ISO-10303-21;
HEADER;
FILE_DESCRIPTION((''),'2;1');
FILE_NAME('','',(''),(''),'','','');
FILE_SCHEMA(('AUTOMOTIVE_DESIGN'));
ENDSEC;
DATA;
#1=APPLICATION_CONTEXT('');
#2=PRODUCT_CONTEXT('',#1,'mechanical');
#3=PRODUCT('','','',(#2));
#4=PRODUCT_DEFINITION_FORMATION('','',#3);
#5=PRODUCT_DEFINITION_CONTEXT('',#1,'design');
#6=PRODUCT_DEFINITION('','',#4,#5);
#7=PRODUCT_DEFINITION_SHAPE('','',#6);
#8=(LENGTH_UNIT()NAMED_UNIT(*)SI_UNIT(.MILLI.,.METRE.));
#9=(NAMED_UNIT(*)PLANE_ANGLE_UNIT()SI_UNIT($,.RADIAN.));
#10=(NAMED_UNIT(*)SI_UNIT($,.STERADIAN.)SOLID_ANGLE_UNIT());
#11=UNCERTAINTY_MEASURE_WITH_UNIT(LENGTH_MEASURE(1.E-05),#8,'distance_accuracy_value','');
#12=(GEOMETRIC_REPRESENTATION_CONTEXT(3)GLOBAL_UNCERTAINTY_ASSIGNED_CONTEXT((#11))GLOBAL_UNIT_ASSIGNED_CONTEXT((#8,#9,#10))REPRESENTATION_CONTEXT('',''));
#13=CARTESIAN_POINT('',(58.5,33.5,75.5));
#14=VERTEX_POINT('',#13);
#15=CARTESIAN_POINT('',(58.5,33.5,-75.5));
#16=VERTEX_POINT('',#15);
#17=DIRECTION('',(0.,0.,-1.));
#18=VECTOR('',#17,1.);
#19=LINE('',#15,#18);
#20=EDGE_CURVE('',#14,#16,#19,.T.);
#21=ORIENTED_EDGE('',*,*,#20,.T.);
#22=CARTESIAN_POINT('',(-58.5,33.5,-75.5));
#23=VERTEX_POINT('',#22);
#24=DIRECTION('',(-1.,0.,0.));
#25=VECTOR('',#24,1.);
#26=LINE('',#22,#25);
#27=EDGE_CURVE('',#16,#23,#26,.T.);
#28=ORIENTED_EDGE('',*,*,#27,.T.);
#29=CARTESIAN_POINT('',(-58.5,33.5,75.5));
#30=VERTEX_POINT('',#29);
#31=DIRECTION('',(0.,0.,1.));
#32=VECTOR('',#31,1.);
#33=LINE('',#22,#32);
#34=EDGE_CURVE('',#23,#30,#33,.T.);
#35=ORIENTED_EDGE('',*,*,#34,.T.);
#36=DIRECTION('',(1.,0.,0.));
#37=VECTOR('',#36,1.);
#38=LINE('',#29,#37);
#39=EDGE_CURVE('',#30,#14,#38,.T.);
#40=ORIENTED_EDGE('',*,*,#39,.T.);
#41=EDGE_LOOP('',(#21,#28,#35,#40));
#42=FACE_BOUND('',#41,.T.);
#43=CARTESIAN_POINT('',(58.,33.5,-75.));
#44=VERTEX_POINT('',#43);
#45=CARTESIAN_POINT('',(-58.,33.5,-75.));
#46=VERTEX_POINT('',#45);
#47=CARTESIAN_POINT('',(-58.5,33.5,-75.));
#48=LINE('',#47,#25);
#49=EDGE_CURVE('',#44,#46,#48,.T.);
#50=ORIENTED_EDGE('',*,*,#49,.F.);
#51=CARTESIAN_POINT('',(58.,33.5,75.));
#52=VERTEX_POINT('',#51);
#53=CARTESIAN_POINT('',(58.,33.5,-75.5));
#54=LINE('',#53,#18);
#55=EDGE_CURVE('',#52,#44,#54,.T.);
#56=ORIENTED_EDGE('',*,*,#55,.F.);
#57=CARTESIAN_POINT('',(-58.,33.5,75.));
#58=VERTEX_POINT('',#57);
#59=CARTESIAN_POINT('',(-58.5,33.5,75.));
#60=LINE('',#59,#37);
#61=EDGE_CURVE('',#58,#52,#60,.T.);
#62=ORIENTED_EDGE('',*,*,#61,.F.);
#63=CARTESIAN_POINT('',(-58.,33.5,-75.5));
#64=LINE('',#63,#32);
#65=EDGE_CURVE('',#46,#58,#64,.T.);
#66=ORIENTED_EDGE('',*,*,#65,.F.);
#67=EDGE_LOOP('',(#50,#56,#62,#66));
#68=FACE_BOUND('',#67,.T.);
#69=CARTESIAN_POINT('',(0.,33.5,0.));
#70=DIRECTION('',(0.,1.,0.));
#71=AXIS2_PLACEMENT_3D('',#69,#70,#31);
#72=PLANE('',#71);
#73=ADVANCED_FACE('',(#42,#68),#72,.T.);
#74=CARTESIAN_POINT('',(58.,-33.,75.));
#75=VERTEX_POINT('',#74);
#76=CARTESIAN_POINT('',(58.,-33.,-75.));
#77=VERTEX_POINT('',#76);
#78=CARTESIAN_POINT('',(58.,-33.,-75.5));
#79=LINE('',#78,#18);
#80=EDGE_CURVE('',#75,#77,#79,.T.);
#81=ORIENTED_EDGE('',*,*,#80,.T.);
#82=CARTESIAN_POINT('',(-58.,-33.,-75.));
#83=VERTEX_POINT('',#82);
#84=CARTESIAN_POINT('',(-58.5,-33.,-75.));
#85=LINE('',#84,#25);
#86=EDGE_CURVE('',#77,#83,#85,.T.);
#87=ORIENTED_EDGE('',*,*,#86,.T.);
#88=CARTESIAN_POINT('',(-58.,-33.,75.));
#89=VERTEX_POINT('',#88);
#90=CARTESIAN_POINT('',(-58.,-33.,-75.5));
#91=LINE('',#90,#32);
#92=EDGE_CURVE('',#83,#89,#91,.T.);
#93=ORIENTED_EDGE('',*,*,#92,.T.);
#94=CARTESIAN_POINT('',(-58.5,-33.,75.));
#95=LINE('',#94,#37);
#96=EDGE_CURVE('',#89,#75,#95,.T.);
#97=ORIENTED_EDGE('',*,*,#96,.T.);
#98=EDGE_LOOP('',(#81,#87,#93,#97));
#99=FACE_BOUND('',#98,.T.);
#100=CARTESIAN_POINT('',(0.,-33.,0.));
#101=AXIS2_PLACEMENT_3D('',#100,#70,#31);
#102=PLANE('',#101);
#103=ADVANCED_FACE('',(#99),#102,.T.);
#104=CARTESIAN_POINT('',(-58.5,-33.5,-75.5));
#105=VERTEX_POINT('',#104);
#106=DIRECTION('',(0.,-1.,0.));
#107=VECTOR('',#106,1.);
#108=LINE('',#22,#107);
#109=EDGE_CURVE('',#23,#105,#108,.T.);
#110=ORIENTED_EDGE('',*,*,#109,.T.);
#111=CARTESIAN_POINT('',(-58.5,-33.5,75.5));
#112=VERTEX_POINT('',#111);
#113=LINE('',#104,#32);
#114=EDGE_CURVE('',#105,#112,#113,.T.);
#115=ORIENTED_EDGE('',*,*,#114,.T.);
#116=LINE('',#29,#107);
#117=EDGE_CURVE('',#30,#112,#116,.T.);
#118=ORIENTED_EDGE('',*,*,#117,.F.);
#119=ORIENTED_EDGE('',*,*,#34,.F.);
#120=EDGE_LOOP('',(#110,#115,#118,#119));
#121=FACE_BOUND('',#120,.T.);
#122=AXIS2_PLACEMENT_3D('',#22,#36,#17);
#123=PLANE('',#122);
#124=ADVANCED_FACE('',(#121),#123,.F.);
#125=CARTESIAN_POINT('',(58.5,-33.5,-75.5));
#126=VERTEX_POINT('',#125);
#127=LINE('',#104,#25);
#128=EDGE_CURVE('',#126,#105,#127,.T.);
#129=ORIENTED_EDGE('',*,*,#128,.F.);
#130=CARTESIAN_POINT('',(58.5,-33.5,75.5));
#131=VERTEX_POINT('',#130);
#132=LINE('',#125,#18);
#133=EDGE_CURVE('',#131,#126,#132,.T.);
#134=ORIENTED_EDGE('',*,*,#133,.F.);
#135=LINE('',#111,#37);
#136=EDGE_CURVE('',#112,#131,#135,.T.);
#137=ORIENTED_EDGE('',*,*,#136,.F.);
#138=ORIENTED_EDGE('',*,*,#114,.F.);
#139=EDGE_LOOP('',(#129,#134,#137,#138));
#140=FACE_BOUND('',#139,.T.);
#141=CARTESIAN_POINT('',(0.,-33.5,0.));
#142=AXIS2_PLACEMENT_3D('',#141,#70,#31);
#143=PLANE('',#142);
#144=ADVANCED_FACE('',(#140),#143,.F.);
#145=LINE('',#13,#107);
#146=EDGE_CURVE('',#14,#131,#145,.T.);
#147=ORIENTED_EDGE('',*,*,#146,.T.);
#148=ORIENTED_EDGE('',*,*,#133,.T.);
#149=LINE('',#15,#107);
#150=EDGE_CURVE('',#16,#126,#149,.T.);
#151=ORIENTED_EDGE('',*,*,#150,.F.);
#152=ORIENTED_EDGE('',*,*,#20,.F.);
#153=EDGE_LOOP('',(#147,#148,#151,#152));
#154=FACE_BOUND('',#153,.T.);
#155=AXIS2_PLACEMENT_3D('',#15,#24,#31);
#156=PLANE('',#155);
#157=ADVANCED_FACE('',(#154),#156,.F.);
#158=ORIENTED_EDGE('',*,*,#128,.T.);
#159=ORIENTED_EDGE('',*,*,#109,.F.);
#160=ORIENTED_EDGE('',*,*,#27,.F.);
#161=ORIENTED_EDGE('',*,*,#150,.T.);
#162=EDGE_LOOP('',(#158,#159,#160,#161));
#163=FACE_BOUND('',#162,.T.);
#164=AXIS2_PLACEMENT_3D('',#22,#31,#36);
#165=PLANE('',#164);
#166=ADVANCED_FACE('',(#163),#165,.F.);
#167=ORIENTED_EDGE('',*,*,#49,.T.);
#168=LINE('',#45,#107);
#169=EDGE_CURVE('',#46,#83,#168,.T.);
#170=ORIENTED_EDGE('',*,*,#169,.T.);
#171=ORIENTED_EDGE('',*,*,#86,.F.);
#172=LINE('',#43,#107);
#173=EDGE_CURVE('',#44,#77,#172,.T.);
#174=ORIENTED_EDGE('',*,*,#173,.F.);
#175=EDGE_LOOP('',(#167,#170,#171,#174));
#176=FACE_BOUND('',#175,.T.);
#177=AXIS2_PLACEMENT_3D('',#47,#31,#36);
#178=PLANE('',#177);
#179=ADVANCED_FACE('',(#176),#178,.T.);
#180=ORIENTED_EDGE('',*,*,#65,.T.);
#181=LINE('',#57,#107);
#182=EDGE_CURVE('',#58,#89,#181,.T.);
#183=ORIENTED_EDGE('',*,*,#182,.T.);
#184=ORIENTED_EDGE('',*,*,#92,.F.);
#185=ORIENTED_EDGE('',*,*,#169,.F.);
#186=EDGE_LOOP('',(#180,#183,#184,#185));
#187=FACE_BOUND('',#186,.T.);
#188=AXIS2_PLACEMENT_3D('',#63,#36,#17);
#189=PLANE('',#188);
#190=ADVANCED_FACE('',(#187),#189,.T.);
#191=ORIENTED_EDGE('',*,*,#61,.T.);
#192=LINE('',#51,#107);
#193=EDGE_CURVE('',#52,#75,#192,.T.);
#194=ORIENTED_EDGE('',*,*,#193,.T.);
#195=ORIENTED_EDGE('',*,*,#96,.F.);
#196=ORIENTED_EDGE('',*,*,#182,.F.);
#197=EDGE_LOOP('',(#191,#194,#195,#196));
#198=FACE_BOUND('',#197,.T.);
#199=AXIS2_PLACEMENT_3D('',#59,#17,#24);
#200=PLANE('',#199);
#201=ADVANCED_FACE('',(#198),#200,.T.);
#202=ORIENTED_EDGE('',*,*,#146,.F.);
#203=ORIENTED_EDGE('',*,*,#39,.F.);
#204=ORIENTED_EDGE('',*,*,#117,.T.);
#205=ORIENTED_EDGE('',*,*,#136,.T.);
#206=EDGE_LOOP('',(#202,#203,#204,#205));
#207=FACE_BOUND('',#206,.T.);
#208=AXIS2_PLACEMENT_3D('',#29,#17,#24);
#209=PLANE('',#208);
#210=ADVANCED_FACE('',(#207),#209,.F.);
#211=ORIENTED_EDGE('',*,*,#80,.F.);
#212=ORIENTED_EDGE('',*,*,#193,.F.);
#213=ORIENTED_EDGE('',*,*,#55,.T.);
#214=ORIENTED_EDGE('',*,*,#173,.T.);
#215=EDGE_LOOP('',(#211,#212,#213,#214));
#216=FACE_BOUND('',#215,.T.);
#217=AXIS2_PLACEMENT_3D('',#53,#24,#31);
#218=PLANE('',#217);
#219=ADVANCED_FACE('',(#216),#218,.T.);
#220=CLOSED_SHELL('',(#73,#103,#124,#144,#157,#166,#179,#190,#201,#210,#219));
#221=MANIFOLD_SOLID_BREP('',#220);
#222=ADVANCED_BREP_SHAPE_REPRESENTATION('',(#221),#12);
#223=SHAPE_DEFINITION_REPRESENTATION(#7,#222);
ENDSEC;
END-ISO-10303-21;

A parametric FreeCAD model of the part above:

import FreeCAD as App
import Part
import Sketcher
from FreeCAD import Vector


def faces_at(feature, points):
    """Names of the faces that lie closest to the given points."""
    faces = feature.Shape.Faces
    near = lambda p: min(range(len(faces)), key=lambda i: faces[i].distToShape(Part.Vertex(*p))[0])
    return sorted({f"Face{near(p) + 1}" for p in points})


def add_polygon(sketch, points):
    """Adds a closed chain of lines whose ends are joined by coincident constraints."""
    first, n = sketch.GeometryCount, len(points)
    for a, b in zip(points, points[1:] + points[:1]):
        sketch.addGeometry(Part.LineSegment(App.Vector(*a, 0), App.Vector(*b, 0)), False)
    for i in range(n):
        sketch.addConstraint(Sketcher.Constraint("Coincident", first + i, 2, first + (i + 1) % n, 1))

doc = App.newDocument("Part")
body = doc.addObject("PartDesign::Body", "Body")

sketch1 = doc.addObject("Sketcher::SketchObject", "Sketch")
body.addObject(sketch1)
sketch1.AttachmentSupport = (doc.XZ_Plane, [""])
sketch1.MapMode = "FlatFace"
add_polygon(sketch1, [(-58, -76), (-58, 76), (58, 76), (58, -76)])
sketch1.addConstraint(Sketcher.Constraint("Vertical", 0))
sketch1.addConstraint(Sketcher.Constraint("Horizontal", 1))
sketch1.addConstraint(Sketcher.Constraint("Vertical", 2))
sketch1.addConstraint(Sketcher.Constraint("Horizontal", 3))
sketch1.addConstraint(Sketcher.Constraint("Symmetric", 0, 2, 2, 2, -1, 1))
sketch1.addConstraint(Sketcher.Constraint("DistanceX", 1, 1, 1, 2, 117.0))
sketch1.addConstraint(Sketcher.Constraint("DistanceY", 0, 1, 0, 2, 151.0))
pad1 = doc.addObject("PartDesign::Pad", "Pad")
body.addObject(pad1)
pad1.Profile = sketch1
pad1.Length = 67
pad1.Midplane = True
doc.recompute()

thickness = doc.addObject("PartDesign::Thickness", "Thickness")
body.addObject(thickness)
thickness.Base = (pad1, faces_at(pad1, [(0, 33.5, 0)]))
thickness.Value = 0.5
thickness.Reversed = True
thickness.Join = "Intersection"

doc.recompute()
